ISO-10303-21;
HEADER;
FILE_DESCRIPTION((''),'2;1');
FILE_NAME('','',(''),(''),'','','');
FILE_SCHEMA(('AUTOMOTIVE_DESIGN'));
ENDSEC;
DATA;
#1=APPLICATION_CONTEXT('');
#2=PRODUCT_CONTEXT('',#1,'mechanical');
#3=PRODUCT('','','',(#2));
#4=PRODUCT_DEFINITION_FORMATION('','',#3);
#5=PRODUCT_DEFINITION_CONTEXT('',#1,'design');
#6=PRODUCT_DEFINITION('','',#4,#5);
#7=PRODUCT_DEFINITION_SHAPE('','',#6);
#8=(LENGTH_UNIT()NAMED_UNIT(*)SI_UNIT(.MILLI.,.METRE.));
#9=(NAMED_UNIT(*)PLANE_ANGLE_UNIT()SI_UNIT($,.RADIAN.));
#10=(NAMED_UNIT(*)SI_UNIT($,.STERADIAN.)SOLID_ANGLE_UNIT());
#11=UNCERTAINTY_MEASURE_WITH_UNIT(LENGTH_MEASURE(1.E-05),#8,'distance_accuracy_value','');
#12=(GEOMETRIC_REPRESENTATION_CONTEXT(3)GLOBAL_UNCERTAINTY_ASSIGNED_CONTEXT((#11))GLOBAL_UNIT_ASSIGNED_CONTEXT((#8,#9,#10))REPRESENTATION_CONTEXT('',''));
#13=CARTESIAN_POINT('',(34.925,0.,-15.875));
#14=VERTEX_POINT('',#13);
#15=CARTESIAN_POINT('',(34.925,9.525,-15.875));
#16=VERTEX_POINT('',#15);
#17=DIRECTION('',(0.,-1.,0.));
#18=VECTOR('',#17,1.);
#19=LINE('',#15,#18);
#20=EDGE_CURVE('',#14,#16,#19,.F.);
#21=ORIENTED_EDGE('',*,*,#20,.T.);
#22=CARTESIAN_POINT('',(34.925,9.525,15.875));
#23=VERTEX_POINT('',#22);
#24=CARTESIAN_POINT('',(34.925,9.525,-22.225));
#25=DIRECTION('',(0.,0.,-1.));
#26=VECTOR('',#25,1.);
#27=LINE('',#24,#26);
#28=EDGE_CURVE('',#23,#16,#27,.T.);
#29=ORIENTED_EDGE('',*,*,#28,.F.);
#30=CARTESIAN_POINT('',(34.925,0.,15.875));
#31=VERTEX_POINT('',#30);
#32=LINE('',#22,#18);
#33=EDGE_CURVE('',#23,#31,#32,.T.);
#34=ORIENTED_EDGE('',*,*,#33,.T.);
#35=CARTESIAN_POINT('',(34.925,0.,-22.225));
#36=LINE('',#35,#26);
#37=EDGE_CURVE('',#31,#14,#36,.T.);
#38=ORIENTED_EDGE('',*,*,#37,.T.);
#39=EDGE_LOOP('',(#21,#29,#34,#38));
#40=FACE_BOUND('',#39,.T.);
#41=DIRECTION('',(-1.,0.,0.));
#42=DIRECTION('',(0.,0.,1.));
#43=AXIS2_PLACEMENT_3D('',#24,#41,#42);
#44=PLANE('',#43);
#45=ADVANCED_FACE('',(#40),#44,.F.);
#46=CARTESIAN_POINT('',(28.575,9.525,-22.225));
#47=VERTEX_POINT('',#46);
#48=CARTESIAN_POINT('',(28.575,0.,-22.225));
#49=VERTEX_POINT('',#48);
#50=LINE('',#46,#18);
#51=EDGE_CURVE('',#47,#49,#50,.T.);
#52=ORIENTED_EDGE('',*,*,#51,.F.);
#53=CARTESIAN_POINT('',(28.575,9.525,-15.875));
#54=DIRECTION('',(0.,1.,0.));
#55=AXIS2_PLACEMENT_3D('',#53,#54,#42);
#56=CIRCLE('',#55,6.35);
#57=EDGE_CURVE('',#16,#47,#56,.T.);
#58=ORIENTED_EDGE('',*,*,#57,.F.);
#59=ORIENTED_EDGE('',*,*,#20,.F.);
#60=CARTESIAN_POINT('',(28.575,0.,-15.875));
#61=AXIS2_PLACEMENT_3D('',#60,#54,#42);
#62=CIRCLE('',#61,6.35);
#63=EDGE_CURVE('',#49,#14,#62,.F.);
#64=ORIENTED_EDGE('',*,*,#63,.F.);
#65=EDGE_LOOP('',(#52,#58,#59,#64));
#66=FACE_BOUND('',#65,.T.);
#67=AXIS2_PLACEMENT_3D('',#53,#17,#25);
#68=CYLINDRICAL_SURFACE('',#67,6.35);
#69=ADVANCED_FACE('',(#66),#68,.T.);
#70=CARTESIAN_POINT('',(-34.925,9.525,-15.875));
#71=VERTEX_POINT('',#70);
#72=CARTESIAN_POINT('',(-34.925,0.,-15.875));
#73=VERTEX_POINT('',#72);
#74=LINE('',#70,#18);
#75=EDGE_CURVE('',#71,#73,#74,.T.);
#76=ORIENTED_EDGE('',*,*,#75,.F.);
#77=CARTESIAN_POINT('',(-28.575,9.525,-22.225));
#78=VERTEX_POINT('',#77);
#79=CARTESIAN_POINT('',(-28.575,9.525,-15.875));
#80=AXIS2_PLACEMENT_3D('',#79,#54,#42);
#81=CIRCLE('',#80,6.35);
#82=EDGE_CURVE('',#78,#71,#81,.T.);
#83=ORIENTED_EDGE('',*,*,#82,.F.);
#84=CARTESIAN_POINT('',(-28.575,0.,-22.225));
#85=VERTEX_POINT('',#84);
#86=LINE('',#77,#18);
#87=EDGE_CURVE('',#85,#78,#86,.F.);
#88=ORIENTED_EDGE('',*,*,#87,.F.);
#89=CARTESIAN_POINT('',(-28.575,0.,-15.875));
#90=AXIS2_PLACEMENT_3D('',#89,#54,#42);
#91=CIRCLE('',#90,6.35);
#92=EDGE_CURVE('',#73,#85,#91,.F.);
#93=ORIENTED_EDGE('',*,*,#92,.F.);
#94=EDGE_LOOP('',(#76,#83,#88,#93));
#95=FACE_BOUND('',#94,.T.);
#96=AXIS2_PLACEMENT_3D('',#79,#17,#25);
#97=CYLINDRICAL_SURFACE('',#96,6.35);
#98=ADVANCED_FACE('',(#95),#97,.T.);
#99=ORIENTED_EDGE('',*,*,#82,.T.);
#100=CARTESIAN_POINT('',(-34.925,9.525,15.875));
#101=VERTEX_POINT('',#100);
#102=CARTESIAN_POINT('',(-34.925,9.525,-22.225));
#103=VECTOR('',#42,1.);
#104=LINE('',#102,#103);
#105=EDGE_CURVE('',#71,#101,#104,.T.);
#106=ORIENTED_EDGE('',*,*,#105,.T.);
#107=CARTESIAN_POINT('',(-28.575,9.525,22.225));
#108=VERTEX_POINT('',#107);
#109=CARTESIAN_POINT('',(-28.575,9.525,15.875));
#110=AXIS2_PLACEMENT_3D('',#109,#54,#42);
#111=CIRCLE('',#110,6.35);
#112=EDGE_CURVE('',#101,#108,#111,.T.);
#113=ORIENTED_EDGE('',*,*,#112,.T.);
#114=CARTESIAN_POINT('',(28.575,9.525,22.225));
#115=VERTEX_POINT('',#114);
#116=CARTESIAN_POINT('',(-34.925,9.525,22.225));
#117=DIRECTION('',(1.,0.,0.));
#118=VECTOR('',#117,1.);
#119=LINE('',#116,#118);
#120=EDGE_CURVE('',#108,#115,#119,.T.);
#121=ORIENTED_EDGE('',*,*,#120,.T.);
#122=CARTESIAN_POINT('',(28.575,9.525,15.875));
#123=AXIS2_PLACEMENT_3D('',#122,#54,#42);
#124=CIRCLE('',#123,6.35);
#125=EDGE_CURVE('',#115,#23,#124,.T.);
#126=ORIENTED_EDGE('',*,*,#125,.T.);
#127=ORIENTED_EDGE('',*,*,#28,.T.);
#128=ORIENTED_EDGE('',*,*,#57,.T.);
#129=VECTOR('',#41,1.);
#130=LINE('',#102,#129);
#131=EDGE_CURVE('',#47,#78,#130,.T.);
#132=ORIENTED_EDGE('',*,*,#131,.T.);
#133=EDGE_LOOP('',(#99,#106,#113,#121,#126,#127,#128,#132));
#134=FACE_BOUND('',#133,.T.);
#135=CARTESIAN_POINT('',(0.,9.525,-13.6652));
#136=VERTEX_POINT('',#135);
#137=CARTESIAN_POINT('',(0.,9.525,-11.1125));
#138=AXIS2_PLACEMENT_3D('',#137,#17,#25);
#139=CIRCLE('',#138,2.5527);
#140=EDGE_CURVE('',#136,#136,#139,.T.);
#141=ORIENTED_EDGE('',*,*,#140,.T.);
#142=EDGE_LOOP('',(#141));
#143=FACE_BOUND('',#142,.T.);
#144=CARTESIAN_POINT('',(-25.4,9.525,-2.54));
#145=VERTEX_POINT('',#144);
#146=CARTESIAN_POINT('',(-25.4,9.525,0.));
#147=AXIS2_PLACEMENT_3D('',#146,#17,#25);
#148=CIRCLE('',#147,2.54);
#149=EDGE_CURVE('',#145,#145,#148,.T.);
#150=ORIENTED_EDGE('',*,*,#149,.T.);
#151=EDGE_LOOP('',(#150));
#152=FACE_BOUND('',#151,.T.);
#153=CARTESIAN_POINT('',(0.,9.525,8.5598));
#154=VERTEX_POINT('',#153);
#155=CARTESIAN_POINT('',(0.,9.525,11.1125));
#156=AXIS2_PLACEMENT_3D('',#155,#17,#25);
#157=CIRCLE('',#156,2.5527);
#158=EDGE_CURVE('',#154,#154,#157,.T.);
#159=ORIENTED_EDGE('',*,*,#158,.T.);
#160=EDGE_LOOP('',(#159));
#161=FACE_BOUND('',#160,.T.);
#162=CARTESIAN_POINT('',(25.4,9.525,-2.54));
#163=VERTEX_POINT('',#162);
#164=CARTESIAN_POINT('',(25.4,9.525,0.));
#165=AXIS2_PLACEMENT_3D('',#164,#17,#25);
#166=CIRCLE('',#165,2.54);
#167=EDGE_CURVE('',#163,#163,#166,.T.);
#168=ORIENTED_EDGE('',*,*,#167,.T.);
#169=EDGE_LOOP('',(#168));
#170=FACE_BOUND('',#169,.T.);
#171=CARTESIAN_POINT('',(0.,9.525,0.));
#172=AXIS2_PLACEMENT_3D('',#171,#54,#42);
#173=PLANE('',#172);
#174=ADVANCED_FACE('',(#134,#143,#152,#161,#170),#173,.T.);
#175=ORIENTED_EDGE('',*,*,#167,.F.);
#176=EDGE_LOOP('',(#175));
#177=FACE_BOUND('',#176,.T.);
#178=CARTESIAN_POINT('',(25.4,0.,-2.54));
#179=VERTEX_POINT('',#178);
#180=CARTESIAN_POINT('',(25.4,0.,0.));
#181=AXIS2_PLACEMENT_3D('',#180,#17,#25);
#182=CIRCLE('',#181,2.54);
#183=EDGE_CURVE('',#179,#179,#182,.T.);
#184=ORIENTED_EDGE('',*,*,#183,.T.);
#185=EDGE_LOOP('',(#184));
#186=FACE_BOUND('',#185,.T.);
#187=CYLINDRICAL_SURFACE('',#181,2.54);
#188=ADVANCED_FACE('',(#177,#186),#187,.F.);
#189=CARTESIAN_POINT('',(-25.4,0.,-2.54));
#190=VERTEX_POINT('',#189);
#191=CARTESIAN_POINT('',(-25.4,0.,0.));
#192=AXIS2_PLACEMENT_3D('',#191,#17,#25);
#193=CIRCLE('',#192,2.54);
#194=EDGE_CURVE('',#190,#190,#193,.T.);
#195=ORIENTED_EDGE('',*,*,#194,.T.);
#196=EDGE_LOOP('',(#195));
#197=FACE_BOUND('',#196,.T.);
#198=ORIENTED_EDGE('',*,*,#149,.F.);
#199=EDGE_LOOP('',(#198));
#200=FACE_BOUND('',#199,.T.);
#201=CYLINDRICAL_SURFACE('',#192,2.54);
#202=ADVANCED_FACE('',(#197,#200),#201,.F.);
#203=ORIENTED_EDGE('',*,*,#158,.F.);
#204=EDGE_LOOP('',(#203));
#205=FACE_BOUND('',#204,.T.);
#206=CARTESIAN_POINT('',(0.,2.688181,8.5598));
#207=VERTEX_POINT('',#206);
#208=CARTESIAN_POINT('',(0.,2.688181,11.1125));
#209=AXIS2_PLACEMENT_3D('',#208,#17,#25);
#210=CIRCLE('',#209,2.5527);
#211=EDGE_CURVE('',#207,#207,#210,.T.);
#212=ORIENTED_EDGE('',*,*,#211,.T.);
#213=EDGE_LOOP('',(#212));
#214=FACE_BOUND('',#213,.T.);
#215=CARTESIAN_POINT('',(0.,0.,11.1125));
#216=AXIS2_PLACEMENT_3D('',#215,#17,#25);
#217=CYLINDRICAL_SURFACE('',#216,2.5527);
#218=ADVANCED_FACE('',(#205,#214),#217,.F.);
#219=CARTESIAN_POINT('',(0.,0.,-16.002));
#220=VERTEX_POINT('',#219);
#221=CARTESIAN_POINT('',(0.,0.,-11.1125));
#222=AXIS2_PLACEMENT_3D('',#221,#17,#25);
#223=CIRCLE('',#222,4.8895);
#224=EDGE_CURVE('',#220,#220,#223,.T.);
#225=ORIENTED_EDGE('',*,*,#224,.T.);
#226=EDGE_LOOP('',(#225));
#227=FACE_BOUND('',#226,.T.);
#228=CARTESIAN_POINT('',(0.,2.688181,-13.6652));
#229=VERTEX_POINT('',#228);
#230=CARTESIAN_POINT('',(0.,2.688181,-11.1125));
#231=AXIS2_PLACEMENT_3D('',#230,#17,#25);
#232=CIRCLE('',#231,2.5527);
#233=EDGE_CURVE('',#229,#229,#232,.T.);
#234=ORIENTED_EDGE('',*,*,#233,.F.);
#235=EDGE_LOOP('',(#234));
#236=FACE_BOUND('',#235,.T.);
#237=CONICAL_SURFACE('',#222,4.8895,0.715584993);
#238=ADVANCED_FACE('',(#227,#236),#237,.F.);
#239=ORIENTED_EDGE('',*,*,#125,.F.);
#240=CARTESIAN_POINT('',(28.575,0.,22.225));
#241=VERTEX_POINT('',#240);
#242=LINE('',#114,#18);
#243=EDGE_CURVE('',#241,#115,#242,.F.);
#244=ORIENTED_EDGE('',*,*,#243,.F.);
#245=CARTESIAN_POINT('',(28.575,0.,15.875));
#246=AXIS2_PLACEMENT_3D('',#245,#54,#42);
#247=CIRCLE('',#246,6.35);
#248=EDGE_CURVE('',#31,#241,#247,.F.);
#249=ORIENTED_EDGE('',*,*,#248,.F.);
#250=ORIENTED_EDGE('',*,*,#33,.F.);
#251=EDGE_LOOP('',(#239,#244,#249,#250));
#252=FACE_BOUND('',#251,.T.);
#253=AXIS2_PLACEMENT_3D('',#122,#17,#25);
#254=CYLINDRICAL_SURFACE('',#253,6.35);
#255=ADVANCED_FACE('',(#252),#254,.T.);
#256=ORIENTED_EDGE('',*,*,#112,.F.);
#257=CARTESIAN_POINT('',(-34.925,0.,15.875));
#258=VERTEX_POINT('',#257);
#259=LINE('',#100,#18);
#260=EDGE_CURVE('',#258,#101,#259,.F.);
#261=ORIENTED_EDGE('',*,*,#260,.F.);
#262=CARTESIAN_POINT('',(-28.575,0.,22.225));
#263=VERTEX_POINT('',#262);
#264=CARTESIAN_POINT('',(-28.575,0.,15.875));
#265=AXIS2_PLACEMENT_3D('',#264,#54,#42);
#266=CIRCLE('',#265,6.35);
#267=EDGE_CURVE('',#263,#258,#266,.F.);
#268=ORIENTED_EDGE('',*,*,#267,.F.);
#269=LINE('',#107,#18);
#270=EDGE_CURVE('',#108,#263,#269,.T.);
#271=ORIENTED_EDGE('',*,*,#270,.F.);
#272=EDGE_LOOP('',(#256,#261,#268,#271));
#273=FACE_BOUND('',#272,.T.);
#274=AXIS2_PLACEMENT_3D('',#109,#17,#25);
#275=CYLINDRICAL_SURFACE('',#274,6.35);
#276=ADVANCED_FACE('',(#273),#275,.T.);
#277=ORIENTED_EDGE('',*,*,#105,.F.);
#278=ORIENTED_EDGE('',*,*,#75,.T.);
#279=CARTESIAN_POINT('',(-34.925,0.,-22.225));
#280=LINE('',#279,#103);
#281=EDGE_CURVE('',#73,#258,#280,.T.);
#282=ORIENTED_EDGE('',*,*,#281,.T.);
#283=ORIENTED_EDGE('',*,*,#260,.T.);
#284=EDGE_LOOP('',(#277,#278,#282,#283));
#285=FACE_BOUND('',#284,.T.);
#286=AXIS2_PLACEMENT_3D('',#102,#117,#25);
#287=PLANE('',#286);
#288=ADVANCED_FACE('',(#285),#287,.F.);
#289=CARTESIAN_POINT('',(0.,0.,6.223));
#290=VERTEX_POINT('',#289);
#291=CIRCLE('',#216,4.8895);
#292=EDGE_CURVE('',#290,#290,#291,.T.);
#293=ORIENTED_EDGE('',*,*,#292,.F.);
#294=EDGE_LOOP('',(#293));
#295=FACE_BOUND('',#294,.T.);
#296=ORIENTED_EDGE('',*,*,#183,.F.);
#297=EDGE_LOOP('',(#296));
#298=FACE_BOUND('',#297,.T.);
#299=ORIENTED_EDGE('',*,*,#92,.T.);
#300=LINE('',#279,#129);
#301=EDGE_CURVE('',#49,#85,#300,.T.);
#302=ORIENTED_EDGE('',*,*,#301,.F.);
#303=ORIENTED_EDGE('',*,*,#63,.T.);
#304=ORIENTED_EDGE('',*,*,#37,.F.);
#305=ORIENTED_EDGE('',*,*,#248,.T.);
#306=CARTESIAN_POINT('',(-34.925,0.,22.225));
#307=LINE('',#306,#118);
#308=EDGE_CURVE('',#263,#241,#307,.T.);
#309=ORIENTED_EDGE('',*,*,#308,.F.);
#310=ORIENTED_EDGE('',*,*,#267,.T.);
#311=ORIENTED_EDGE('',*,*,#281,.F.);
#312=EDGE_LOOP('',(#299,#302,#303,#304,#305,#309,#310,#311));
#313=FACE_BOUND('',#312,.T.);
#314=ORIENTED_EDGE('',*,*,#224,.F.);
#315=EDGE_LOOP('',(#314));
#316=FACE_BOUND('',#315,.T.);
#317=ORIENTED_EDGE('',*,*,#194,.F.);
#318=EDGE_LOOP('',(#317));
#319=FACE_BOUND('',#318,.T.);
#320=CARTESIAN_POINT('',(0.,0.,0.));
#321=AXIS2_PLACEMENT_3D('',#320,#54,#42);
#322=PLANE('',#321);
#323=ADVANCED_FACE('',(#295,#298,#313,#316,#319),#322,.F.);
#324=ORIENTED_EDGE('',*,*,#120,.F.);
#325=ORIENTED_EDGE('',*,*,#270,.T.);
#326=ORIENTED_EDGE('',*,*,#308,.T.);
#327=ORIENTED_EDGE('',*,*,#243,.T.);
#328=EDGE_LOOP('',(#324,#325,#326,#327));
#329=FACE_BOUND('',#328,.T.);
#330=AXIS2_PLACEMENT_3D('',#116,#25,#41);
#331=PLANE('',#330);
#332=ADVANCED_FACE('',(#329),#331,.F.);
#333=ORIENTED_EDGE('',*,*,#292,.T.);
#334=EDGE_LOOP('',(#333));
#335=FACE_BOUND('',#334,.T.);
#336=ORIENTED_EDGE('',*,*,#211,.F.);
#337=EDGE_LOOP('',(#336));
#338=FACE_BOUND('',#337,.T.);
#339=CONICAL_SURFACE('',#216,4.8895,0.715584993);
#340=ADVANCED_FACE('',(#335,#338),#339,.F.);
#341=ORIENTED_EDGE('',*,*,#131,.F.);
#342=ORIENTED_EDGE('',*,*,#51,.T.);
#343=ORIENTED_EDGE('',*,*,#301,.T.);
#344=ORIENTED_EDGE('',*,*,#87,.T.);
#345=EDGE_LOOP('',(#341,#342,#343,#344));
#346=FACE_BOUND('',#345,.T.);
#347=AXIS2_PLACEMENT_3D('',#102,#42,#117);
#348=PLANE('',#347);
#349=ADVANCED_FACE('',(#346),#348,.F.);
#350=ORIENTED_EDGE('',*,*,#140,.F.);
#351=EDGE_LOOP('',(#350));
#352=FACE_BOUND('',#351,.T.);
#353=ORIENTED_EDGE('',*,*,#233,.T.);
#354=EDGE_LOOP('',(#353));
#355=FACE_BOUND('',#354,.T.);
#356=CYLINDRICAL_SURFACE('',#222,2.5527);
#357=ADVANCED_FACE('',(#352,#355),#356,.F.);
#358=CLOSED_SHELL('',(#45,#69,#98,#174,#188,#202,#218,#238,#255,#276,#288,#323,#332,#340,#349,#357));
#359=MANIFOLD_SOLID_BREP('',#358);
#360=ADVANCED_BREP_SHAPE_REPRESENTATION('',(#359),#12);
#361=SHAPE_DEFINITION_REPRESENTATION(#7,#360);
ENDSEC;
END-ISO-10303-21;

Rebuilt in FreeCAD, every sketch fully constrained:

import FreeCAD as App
import Part
import Sketcher
Q = App.Units.Quantity


def edges_at(feature, points):
    """Names of the edges that pass closest to the given points."""
    edges = feature.Shape.Edges
    near = lambda p: min(range(len(edges)), key=lambda i: edges[i].distToShape(Part.Vertex(*p))[0])
    return sorted({f"Edge{near(p) + 1}" for p in points})


def add_polygon(sketch, points):
    """Adds a closed chain of lines whose ends are joined by coincident constraints."""
    first, n = sketch.GeometryCount, len(points)
    for a, b in zip(points, points[1:] + points[:1]):
        sketch.addGeometry(Part.LineSegment(App.Vector(*a, 0), App.Vector(*b, 0)), False)
    for i in range(n):
        sketch.addConstraint(Sketcher.Constraint("Coincident", first + i, 2, first + (i + 1) % n, 1))

doc = App.newDocument("Part")
body = doc.addObject("PartDesign::Body", "Body")

sketch1 = doc.addObject("Sketcher::SketchObject", "Sketch")
body.addObject(sketch1)
sketch1.AttachmentSupport = (doc.XZ_Plane, [""])
sketch1.MapMode = "FlatFace"
add_polygon(sketch1, [(-35, -22), (-35, 22), (35, 22), (35, -22)])
sketch1.addConstraint(Sketcher.Constraint("Vertical", 0))
sketch1.addConstraint(Sketcher.Constraint("Horizontal", 1))
sketch1.addConstraint(Sketcher.Constraint("Vertical", 2))
sketch1.addConstraint(Sketcher.Constraint("Horizontal", 3))
sketch1.addConstraint(Sketcher.Constraint("Symmetric", 0, 2, 2, 2, -1, 1))
sketch1.addConstraint(Sketcher.Constraint("DistanceX", 1, 1, 1, 2, Q("2.75 in")))
sketch1.addConstraint(Sketcher.Constraint("DistanceY", 0, 1, 0, 2, Q("1.75 in")))
pad1 = doc.addObject("PartDesign::Pad", "Pad")
body.addObject(pad1)
pad1.Profile = sketch1
pad1.Length = Q("0.375 in")
pad1.Reversed = True

sketch2 = doc.addObject("Sketcher::SketchObject", "Sketch001")
body.addObject(sketch2)
sketch2.AttachmentSupport = (doc.XZ_Plane, [""])
sketch2.MapMode = "FlatFace"
sketch2.addGeometry(Part.Circle(App.Vector(0, -11.1, 0), App.Vector(0, 0, 1), 2.6), False)
sketch2.addGeometry(Part.Circle(App.Vector(0, 11.1, 0), App.Vector(0, 0, 1), 2.6), False)
sketch2.addConstraint(Sketcher.Constraint("Equal", 0, 1))
sketch2.addConstraint(Sketcher.Constraint("Symmetric", 0, 3, 1, 3, -1, 1))
sketch2.addConstraint(Sketcher.Constraint("PointOnObject", 0, 3, -2))
sketch2.addConstraint(Sketcher.Constraint("Diameter", 0, Q("0.201 in")))
sketch2.addConstraint(Sketcher.Constraint("DistanceY", 0, 3, -1, 1, Q("0.4375 in")))
doc.recompute()
hole = doc.addObject("PartDesign::Hole", "Hole")
body.addObject(hole)
hole.Profile = sketch2
hole.ThreadType = "None"
hole.Diameter = Q("0.201 in")
hole.DepthType = "ThroughAll"
hole.HoleCutType = "Countersink"
hole.HoleCutDiameter = Q("0.385 in")
hole.HoleCutCountersinkAngle = 82

sketch3 = doc.addObject("Sketcher::SketchObject", "Sketch002")
body.addObject(sketch3)
sketch3.AttachmentSupport = (doc.XZ_Plane, [""])
sketch3.MapMode = "FlatFace"
sketch3.addGeometry(Part.Circle(App.Vector(25.4, 0, 0), App.Vector(0, 0, 1), 2.5), False)
sketch3.addConstraint(Sketcher.Constraint("PointOnObject", 0, 3, -1))
sketch3.addConstraint(Sketcher.Constraint("Diameter", 0, Q("0.2 in")))
sketch3.addConstraint(Sketcher.Constraint("DistanceX", -1, 1, 0, 3, Q("1 in")))
doc.recompute()
hole2 = doc.addObject("PartDesign::Hole", "Hole001")
body.addObject(hole2)
hole2.Profile = sketch3
hole2.ThreadType = "None"
hole2.Diameter = Q("0.2 in")
hole2.DepthType = "ThroughAll"
doc.recompute()

mirrored = doc.addObject("PartDesign::Mirrored", "Mirrored")
body.addObject(mirrored)
mirrored.Originals = [hole2]
mirrored.MirrorPlane = (doc.YZ_Plane, [""])
body.Tip = mirrored
doc.recompute()

fillet = doc.addObject("PartDesign::Fillet", "Fillet")
body.addObject(fillet)
fillet.Base = (mirrored, edges_at(mirrored, [
    (34.925, 4.763, 22.225),
    (-34.925, 4.763, 22.225),
    (-34.925, 4.763, -22.225),
    (34.925, 4.763, -22.225),
]))
fillet.Radius = Q("0.25 in")

doc.recompute()
